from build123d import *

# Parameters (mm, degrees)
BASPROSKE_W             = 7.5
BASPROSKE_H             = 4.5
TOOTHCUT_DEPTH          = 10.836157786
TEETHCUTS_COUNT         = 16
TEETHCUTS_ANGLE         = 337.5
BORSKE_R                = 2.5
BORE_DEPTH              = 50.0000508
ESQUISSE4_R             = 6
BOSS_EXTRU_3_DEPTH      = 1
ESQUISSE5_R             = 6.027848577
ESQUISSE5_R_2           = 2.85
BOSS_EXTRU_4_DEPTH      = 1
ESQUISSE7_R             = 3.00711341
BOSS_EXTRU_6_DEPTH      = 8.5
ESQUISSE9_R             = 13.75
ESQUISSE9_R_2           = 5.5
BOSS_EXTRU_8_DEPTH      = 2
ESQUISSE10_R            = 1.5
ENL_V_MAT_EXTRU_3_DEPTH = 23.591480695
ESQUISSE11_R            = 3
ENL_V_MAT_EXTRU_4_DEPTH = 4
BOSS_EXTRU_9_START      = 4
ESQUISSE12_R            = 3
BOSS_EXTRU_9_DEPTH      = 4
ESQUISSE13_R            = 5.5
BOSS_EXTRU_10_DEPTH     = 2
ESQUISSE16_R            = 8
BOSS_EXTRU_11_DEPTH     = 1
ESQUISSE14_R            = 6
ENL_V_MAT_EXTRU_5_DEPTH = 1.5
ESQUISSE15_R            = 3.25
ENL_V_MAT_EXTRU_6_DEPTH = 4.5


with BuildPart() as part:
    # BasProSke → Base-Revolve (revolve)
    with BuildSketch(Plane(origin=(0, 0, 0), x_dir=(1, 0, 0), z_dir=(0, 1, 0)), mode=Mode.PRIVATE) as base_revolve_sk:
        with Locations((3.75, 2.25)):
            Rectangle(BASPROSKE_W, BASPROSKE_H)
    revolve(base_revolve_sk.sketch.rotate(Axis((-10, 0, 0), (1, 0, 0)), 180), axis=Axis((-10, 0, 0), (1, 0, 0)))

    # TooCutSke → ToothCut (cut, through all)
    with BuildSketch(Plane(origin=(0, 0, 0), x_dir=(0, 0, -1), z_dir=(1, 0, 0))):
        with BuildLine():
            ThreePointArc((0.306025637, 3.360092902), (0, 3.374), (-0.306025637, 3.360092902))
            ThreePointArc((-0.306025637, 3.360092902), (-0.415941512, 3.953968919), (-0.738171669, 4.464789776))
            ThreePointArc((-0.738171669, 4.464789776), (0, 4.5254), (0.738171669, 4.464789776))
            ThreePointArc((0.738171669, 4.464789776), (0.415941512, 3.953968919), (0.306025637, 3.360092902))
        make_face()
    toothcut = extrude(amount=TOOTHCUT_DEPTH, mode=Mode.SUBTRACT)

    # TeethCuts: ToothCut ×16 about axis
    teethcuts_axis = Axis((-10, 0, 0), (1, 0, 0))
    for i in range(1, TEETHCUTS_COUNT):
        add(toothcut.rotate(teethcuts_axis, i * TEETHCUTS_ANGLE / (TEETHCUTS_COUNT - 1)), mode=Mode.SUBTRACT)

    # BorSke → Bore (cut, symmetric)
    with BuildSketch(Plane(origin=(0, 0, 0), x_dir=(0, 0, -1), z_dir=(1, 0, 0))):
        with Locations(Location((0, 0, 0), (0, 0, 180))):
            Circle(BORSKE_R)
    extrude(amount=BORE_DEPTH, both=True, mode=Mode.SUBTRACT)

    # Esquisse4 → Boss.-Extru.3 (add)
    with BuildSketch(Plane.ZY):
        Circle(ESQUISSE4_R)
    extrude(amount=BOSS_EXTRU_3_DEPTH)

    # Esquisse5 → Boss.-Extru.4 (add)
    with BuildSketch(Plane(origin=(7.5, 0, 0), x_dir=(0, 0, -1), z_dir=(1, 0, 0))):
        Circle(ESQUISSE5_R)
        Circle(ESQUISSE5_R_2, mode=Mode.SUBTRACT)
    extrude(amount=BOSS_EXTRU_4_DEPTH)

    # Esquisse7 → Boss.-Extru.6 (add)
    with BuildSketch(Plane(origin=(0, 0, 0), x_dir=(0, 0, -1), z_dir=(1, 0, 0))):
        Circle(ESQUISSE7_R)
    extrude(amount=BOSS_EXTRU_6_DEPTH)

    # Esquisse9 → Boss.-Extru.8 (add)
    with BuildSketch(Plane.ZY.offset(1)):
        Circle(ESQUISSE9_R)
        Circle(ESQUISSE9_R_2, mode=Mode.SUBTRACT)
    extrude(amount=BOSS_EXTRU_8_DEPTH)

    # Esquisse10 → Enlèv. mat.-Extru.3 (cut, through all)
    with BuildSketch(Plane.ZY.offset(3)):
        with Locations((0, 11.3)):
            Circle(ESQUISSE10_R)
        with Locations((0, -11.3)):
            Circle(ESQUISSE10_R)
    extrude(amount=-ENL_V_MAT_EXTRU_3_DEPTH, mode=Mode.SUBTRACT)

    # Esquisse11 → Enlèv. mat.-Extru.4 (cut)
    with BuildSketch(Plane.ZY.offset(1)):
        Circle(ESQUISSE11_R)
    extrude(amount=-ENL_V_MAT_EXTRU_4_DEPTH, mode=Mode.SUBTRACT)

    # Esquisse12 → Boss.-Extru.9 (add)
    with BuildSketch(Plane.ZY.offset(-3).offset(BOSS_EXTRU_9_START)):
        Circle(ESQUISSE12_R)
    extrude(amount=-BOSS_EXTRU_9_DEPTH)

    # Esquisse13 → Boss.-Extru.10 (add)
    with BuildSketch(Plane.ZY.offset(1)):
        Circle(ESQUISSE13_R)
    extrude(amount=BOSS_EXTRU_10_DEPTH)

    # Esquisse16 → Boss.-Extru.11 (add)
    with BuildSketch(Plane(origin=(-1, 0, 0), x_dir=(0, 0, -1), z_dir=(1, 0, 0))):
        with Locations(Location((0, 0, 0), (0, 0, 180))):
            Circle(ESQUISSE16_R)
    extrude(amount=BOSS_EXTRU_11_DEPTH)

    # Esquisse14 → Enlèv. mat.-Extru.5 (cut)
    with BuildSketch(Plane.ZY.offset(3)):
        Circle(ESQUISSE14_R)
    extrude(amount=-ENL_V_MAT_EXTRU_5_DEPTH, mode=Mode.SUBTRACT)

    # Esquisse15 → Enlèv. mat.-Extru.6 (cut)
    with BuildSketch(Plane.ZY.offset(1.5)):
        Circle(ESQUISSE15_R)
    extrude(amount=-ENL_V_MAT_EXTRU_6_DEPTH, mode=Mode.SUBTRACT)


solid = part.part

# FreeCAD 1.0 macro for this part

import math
import FreeCAD as App
import Part
import Sketcher

V = App.Vector

doc = App.newDocument("Part")
params = doc.addObject("Spreadsheet::Sheet", "Params")
for row, (alias, value) in enumerate([
    ("sketch1_width", "7.5 mm"),
    ("sketch1_height", "4.5 mm"),
    ("revolution_angle", "360 deg"),
    ("sketch2_radius", "1.6 mm"),
    ("sketch3_diameter", "5 mm"),
    ("pocket2_length", "100.000102 mm"),
    ("sketch4_diameter", "12 mm"),
    ("pad1_length", "1 mm"),
    ("sketch5_diameter", "5.7 mm"),
    ("pad2_length", "1 mm"),
    ("pad3_length", "8.5 mm"),
    ("sketch7_diameter", "11 mm"),
    ("sketch7_diameter2", "27.5 mm"),
    ("pad4_length", "2 mm"),
    ("sketch8_diameter", "3 mm"),
    ("sketch9_diameter", "6 mm"),
    ("pocket4_length", "4 mm"),
    ("sketch10_diameter", "6 mm"),
    ("pad5_length", "4 mm"),
    ("sketch11_diameter", "11 mm"),
    ("pad6_length", "2 mm"),
    ("sketch12_diameter", "16 mm"),
    ("pad7_length", "1 mm"),
    ("sketch13_diameter", "12 mm"),
    ("pocket5_length", "1.5 mm"),
    ("sketch14_diameter", "6.5 mm"),
    ("pocket6_length", "4.5 mm"),
], start=1):
    params.set(f"A{row}", alias)
    params.set(f"B{row}", "=" + value)
    params.setAlias(f"B{row}", alias)

body = doc.addObject("PartDesign::Body", "Body")

# Sketch on XZ plane
sketch1 = doc.addObject("Sketcher::SketchObject", "Sketch")
body.addObject(sketch1)
sketch1.AttachmentSupport = (doc.XZ_Plane, [""])
sketch1.MapMode = "FlatFace"
sketch1.addGeometry(Part.LineSegment(V(0, -4.5, 0), V(0, 0, 0)), False)
sketch1.addGeometry(Part.LineSegment(V(0, 0, 0), V(7.5, 0, 0)), False)
sketch1.addGeometry(Part.LineSegment(V(7.5, 0, 0), V(7.5, -4.5, 0)), False)
sketch1.addGeometry(Part.LineSegment(V(7.5, -4.5, 0), V(0, -4.5, 0)), False)
sketch1.addConstraint(Sketcher.Constraint("Coincident", 0, 2, 1, 1))
sketch1.addConstraint(Sketcher.Constraint("Coincident", 1, 2, 2, 1))
sketch1.addConstraint(Sketcher.Constraint("Coincident", 2, 2, 3, 1))
sketch1.addConstraint(Sketcher.Constraint("Coincident", 3, 2, 0, 1))
sketch1.addConstraint(Sketcher.Constraint("Vertical", 0))
sketch1.addConstraint(Sketcher.Constraint("Horizontal", 1))
sketch1.addConstraint(Sketcher.Constraint("Vertical", 2))
sketch1.addConstraint(Sketcher.Constraint("Horizontal", 3))
sketch1.addConstraint(Sketcher.Constraint("Coincident", 0, 2, -1, 1))
sketch1.addConstraint(Sketcher.Constraint("DistanceX", 1, 1, 1, 2, 7.5))
sketch1.addConstraint(Sketcher.Constraint("DistanceY", 0, 1, 0, 2, 4.5))
sketch1.setExpression("Constraints[9]", "Params.sketch1_width")
sketch1.setExpression("Constraints[10]", "Params.sketch1_height")
revolution = doc.addObject("PartDesign::Revolution", "Revolution")
body.addObject(revolution)
revolution.Profile = sketch1
revolution.ReferenceAxis = (sketch1, ["H_Axis"])
revolution.setExpression("Angle", "Params.revolution_angle")

# Sketch on YZ plane
sketch2 = doc.addObject("Sketcher::SketchObject", "Sketch001")
body.addObject(sketch2)
sketch2.AttachmentSupport = (doc.YZ_Plane, [""])
sketch2.MapMode = "FlatFace"
sketch2.addGeometry(Part.ArcOfCircle(Part.Circle(V(0, 0, 0), V(0, 0, 1), 3.4), math.radians(-5.2), math.radians(5.2)), False)
sketch2.addGeometry(Part.ArcOfCircle(Part.Circle(V(3.4, -1.9, 0), V(0, 0, 1), 1.6), math.radians(47), math.radians(90)), False)
sketch2.addGeometry(Part.ArcOfCircle(Part.Circle(V(0, 0, 0), V(0, 0, 1), 4.5), math.radians(-9.39), math.radians(9.39)), False)
sketch2.addGeometry(Part.ArcOfCircle(Part.Circle(V(3.4, 1.9, 0), V(0, 0, 1), 1.6), math.radians(-90), math.radians(-47)), False)
sketch2.addConstraint(Sketcher.Constraint("Coincident", 0, 1, 1, 2))
sketch2.addConstraint(Sketcher.Constraint("Coincident", 1, 1, 2, 1))
sketch2.addConstraint(Sketcher.Constraint("Coincident", 2, 2, 3, 2))
sketch2.addConstraint(Sketcher.Constraint("Coincident", 3, 1, 0, 2))
sketch2.addConstraint(Sketcher.Constraint("Coincident", 0, 3, -1, 1))
sketch2.addConstraint(Sketcher.Constraint("Coincident", 2, 3, -1, 1))
sketch2.addConstraint(Sketcher.Constraint("Equal", 1, 3))
sketch2.addConstraint(Sketcher.Constraint("Symmetric", 1, 3, 3, 3, -1))
sketch2.addConstraint(Sketcher.Constraint("Radius", 1, 1.6))
sketch2.addConstraint(Sketcher.Constraint("Radius", 0, 3.374))
sketch2.addConstraint(Sketcher.Constraint("Radius", 2, 4.5254))
sketch2.addConstraint(Sketcher.Constraint("DistanceX", -1, 1, 1, 3, 3.371078))
sketch2.addConstraint(Sketcher.Constraint("DistanceX", -1, 1, 1, 1, 4.46479))
sketch2.setExpression("Constraints[8]", "Params.sketch2_radius")
pocket1 = doc.addObject("PartDesign::Pocket", "Pocket")
body.addObject(pocket1)
pocket1.Profile = sketch2
pocket1.Type = "ThroughAll"
pocket1.Reversed = True
doc.recompute()

polarpattern = doc.addObject("PartDesign::PolarPattern", "PolarPattern")
body.addObject(polarpattern)
polarpattern.Originals = [pocket1]
polarpattern.Axis = (doc.X_Axis, [""])
polarpattern.Angle = 360
polarpattern.Occurrences = 16
body.Tip = polarpattern

# Sketch on YZ plane
sketch3 = doc.addObject("Sketcher::SketchObject", "Sketch002")
body.addObject(sketch3)
sketch3.AttachmentSupport = (doc.YZ_Plane, [""])
sketch3.MapMode = "FlatFace"
sketch3.addGeometry(Part.Circle(V(0, 0, 0), V(0, 0, 1), 2.5), False)
sketch3.addConstraint(Sketcher.Constraint("Coincident", 0, 3, -1, 1))
sketch3.addConstraint(Sketcher.Constraint("Diameter", 0, 5.0))
sketch3.setExpression("Constraints[1]", "Params.sketch3_diameter")
pocket2 = doc.addObject("PartDesign::Pocket", "Pocket001")
body.addObject(pocket2)
pocket2.Profile = sketch3
pocket2.setExpression("Length", "Params.pocket2_length")
pocket2.Midplane = True

# Sketch on YZ plane
sketch4 = doc.addObject("Sketcher::SketchObject", "Sketch003")
body.addObject(sketch4)
sketch4.AttachmentSupport = (doc.YZ_Plane, [""])
sketch4.MapMode = "FlatFace"
sketch4.addGeometry(Part.Circle(V(0, 0, 0), V(0, 0, 1), 6), False)
sketch4.addConstraint(Sketcher.Constraint("Coincident", 0, 3, -1, 1))
sketch4.addConstraint(Sketcher.Constraint("Diameter", 0, 12.0))
sketch4.setExpression("Constraints[1]", "Params.sketch4_diameter")
pad1 = doc.addObject("PartDesign::Pad", "Pad")
body.addObject(pad1)
pad1.Profile = sketch4
pad1.setExpression("Length", "Params.pad1_length")
pad1.Reversed = True

# Sketch on YZ plane
sketch5 = doc.addObject("Sketcher::SketchObject", "Sketch004")
body.addObject(sketch5)
sketch5.AttachmentSupport = (doc.YZ_Plane, [""])
sketch5.MapMode = "FlatFace"
sketch5.AttachmentOffset = App.Placement(V(0, 0, 7.5), App.Rotation())
sketch5.addGeometry(Part.Circle(V(0, 0, 0), V(0, 0, 1), 6), False)
sketch5.addGeometry(Part.Circle(V(0, 0, 0), V(0, 0, 1), 2.9), False)
sketch5.addConstraint(Sketcher.Constraint("Coincident", 0, 3, -1, 1))
sketch5.addConstraint(Sketcher.Constraint("Coincident", 1, 3, -1, 1))
sketch5.addConstraint(Sketcher.Constraint("Diameter", 1, 5.7))
sketch5.addConstraint(Sketcher.Constraint("Diameter", 0, 12.055697))
sketch5.setExpression("Constraints[2]", "Params.sketch5_diameter")
pad2 = doc.addObject("PartDesign::Pad", "Pad001")
body.addObject(pad2)
pad2.Profile = sketch5
pad2.setExpression("Length", "Params.pad2_length")

# Sketch on YZ plane
sketch6 = doc.addObject("Sketcher::SketchObject", "Sketch005")
body.addObject(sketch6)
sketch6.AttachmentSupport = (doc.YZ_Plane, [""])
sketch6.MapMode = "FlatFace"
sketch6.addGeometry(Part.Circle(V(0, 0, 0), V(0, 0, 1), 3), False)
sketch6.addConstraint(Sketcher.Constraint("Coincident", 0, 3, -1, 1))
sketch6.addConstraint(Sketcher.Constraint("Diameter", 0, 6.014227))
pad3 = doc.addObject("PartDesign::Pad", "Pad002")
body.addObject(pad3)
pad3.Profile = sketch6
pad3.setExpression("Length", "Params.pad3_length")

# Sketch on YZ plane
sketch7 = doc.addObject("Sketcher::SketchObject", "Sketch006")
body.addObject(sketch7)
sketch7.AttachmentSupport = (doc.YZ_Plane, [""])
sketch7.MapMode = "FlatFace"
sketch7.AttachmentOffset = App.Placement(V(0, 0, -1), App.Rotation())
sketch7.addGeometry(Part.Circle(V(0, 0, 0), V(0, 0, 1), 14), False)
sketch7.addGeometry(Part.Circle(V(0, 0, 0), V(0, 0, 1), 6), False)
sketch7.addConstraint(Sketcher.Constraint("Coincident", 0, 3, -1, 1))
sketch7.addConstraint(Sketcher.Constraint("Coincident", 1, 3, -1, 1))
sketch7.addConstraint(Sketcher.Constraint("Diameter", 1, 11.0))
sketch7.addConstraint(Sketcher.Constraint("Diameter", 0, 27.5))
sketch7.setExpression("Constraints[2]", "Params.sketch7_diameter")
sketch7.setExpression("Constraints[3]", "Params.sketch7_diameter2")
pad4 = doc.addObject("PartDesign::Pad", "Pad003")
body.addObject(pad4)
pad4.Profile = sketch7
pad4.setExpression("Length", "Params.pad4_length")
pad4.Reversed = True

# Sketch on YZ plane
sketch8 = doc.addObject("Sketcher::SketchObject", "Sketch007")
body.addObject(sketch8)
sketch8.AttachmentSupport = (doc.YZ_Plane, [""])
sketch8.MapMode = "FlatFace"
sketch8.AttachmentOffset = App.Placement(V(0, 0, -3), App.Rotation())
sketch8.addGeometry(Part.Circle(V(11.3, 0, 0), V(0, 0, 1), 1.5), False)
sketch8.addGeometry(Part.Circle(V(-11.3, 0, 0), V(0, 0, 1), 1.5), False)
sketch8.addConstraint(Sketcher.Constraint("Equal", 0, 1))
sketch8.addConstraint(Sketcher.Constraint("Symmetric", 0, 3, 1, 3, -1, 1))
sketch8.addConstraint(Sketcher.Constraint("PointOnObject", 0, 3, -1))
sketch8.addConstraint(Sketcher.Constraint("Diameter", 0, 3.0))
sketch8.addConstraint(Sketcher.Constraint("DistanceX", -1, 1, 0, 3, 11.3))
sketch8.setExpression("Constraints[3]", "Params.sketch8_diameter")
pocket3 = doc.addObject("PartDesign::Pocket", "Pocket002")
body.addObject(pocket3)
pocket3.Profile = sketch8
pocket3.Type = "ThroughAll"
pocket3.Reversed = True

# Sketch on YZ plane
sketch9 = doc.addObject("Sketcher::SketchObject", "Sketch008")
body.addObject(sketch9)
sketch9.AttachmentSupport = (doc.YZ_Plane, [""])
sketch9.MapMode = "FlatFace"
sketch9.AttachmentOffset = App.Placement(V(0, 0, -1), App.Rotation())
sketch9.addGeometry(Part.Circle(V(0, 0, 0), V(0, 0, 1), 3), False)
sketch9.addConstraint(Sketcher.Constraint("Coincident", 0, 3, -1, 1))
sketch9.addConstraint(Sketcher.Constraint("Diameter", 0, 6.0))
sketch9.setExpression("Constraints[1]", "Params.sketch9_diameter")
pocket4 = doc.addObject("PartDesign::Pocket", "Pocket003")
body.addObject(pocket4)
pocket4.Profile = sketch9
pocket4.setExpression("Length", "Params.pocket4_length")
pocket4.Reversed = True

# Sketch on YZ plane
sketch10 = doc.addObject("Sketcher::SketchObject", "Sketch009")
body.addObject(sketch10)
sketch10.AttachmentSupport = (doc.YZ_Plane, [""])
sketch10.MapMode = "FlatFace"
sketch10.AttachmentOffset = App.Placement(V(0, 0, -1), App.Rotation())
sketch10.addGeometry(Part.Circle(V(0, 0, 0), V(0, 0, 1), 3), False)
sketch10.addConstraint(Sketcher.Constraint("Coincident", 0, 3, -1, 1))
sketch10.addConstraint(Sketcher.Constraint("Diameter", 0, 6.0))
sketch10.setExpression("Constraints[1]", "Params.sketch10_diameter")
pad5 = doc.addObject("PartDesign::Pad", "Pad004")
body.addObject(pad5)
pad5.Profile = sketch10
pad5.setExpression("Length", "Params.pad5_length")

# Sketch on YZ plane
sketch11 = doc.addObject("Sketcher::SketchObject", "Sketch010")
body.addObject(sketch11)
sketch11.AttachmentSupport = (doc.YZ_Plane, [""])
sketch11.MapMode = "FlatFace"
sketch11.AttachmentOffset = App.Placement(V(0, 0, -1), App.Rotation())
sketch11.addGeometry(Part.Circle(V(0, 0, 0), V(0, 0, 1), 6), False)
sketch11.addConstraint(Sketcher.Constraint("Coincident", 0, 3, -1, 1))
sketch11.addConstraint(Sketcher.Constraint("Diameter", 0, 11.0))
sketch11.setExpression("Constraints[1]", "Params.sketch11_diameter")
pad6 = doc.addObject("PartDesign::Pad", "Pad005")
body.addObject(pad6)
pad6.Profile = sketch11
pad6.setExpression("Length", "Params.pad6_length")
pad6.Reversed = True

# Sketch on YZ plane
sketch12 = doc.addObject("Sketcher::SketchObject", "Sketch011")
body.addObject(sketch12)
sketch12.AttachmentSupport = (doc.YZ_Plane, [""])
sketch12.MapMode = "FlatFace"
sketch12.AttachmentOffset = App.Placement(V(0, 0, -1), App.Rotation())
sketch12.addGeometry(Part.Circle(V(0, 0, 0), V(0, 0, 1), 8), False)
sketch12.addConstraint(Sketcher.Constraint("Coincident", 0, 3, -1, 1))
sketch12.addConstraint(Sketcher.Constraint("Diameter", 0, 16.0))
sketch12.setExpression("Constraints[1]", "Params.sketch12_diameter")
pad7 = doc.addObject("PartDesign::Pad", "Pad006")
body.addObject(pad7)
pad7.Profile = sketch12
pad7.setExpression("Length", "Params.pad7_length")

# Sketch on YZ plane
sketch13 = doc.addObject("Sketcher::SketchObject", "Sketch012")
body.addObject(sketch13)
sketch13.AttachmentSupport = (doc.YZ_Plane, [""])
sketch13.MapMode = "FlatFace"
sketch13.AttachmentOffset = App.Placement(V(0, 0, -3), App.Rotation())
sketch13.addGeometry(Part.Circle(V(0, 0, 0), V(0, 0, 1), 6), False)
sketch13.addConstraint(Sketcher.Constraint("Coincident", 0, 3, -1, 1))
sketch13.addConstraint(Sketcher.Constraint("Diameter", 0, 12.0))
sketch13.setExpression("Constraints[1]", "Params.sketch13_diameter")
pocket5 = doc.addObject("PartDesign::Pocket", "Pocket004")
body.addObject(pocket5)
pocket5.Profile = sketch13
pocket5.setExpression("Length", "Params.pocket5_length")
pocket5.Reversed = True

# Sketch on YZ plane
sketch14 = doc.addObject("Sketcher::SketchObject", "Sketch013")
body.addObject(sketch14)
sketch14.AttachmentSupport = (doc.YZ_Plane, [""])
sketch14.MapMode = "FlatFace"
sketch14.AttachmentOffset = App.Placement(V(0, 0, -1.5), App.Rotation())
sketch14.addGeometry(Part.Circle(V(0, 0, 0), V(0, 0, 1), 3.2), False)
sketch14.addConstraint(Sketcher.Constraint("Coincident", 0, 3, -1, 1))
sketch14.addConstraint(Sketcher.Constraint("Diameter", 0, 6.5))
sketch14.setExpression("Constraints[1]", "Params.sketch14_diameter")
pocket6 = doc.addObject("PartDesign::Pocket", "Pocket005")
body.addObject(pocket6)
pocket6.Profile = sketch14
pocket6.setExpression("Length", "Params.pocket6_length")
pocket6.Reversed = True

doc.recompute()
